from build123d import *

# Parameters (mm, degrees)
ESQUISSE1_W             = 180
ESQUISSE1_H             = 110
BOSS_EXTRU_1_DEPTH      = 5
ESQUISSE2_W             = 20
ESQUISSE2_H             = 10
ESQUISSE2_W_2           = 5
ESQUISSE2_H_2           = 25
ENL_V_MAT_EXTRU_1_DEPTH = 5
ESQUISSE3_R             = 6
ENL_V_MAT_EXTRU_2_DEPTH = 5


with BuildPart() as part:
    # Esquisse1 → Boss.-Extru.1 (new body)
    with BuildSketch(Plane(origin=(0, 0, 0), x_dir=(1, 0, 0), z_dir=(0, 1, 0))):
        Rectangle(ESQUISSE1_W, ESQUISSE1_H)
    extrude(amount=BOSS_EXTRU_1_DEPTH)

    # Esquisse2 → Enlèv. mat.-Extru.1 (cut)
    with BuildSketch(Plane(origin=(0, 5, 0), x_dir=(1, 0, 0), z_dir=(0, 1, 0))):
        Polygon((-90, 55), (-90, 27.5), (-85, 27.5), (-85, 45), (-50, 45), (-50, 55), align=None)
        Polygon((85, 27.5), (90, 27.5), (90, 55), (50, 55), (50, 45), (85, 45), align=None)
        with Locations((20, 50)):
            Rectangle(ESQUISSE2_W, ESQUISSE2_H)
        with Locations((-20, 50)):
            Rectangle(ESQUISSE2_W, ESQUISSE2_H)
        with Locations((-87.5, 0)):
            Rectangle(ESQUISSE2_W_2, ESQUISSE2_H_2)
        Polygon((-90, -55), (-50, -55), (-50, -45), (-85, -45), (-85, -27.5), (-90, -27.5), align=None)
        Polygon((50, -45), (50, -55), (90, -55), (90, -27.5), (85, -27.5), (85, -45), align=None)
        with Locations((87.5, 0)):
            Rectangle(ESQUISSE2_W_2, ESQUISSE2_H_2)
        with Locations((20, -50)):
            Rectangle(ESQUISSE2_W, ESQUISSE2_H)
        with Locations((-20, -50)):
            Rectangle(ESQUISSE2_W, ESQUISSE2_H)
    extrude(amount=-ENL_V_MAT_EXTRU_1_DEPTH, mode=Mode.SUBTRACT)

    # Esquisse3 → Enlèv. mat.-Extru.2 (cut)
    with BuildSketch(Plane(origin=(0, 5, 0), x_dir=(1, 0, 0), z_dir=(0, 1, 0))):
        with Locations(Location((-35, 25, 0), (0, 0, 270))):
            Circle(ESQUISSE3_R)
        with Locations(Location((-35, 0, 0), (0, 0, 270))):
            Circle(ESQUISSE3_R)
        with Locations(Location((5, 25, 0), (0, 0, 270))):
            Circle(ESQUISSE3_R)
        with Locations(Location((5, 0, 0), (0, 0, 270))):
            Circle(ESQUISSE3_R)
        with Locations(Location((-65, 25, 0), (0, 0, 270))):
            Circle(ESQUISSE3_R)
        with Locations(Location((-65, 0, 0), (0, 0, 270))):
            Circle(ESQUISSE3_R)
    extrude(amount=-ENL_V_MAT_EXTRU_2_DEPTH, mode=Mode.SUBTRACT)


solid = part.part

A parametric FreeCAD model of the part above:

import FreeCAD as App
import Part
import Sketcher
from FreeCAD import Vector
Q = App.Units.Quantity


def add_polygon(sketch, points):
    """Adds a closed chain of lines whose ends are joined by coincident constraints."""
    first, n = sketch.GeometryCount, len(points)
    for a, b in zip(points, points[1:] + points[:1]):
        sketch.addGeometry(Part.LineSegment(App.Vector(*a, 0), App.Vector(*b, 0)), False)
    for i in range(n):
        sketch.addConstraint(Sketcher.Constraint("Coincident", first + i, 2, first + (i + 1) % n, 1))

doc = App.newDocument("Part")
body = doc.addObject("PartDesign::Body", "Body")

# Sketch on XZ plane
sketch1 = body.newObject("Sketcher::SketchObject", "Sketch")
sketch1.AttachmentSupport = (doc.getObject("XZ_Plane"), [""])
sketch1.MapMode = "FlatFace"
add_polygon(sketch1, [(-90, -55), (-90, 55), (90, 55), (90, -55)])  # lines 0-3
sketch1.addConstraint([
    Sketcher.Constraint("Vertical", 0),
    Sketcher.Constraint("Horizontal", 1),
    Sketcher.Constraint("Vertical", 2),
    Sketcher.Constraint("Horizontal", 3),
    Sketcher.Constraint("Symmetric", 0, 2, 2, 2, -1, 1),
    Sketcher.Constraint("DistanceX", 1, 1, 1, 2, Q("180 mm")),
    Sketcher.Constraint("DistanceY", 0, 1, 0, 2, Q("110 mm")),
])
pad1 = body.newObject("PartDesign::Pad", "Pad")
pad1.Profile = sketch1
pad1.Length = 5
pad1.Reversed = True

# Sketch on XZ plane
sketch2 = body.newObject("Sketcher::SketchObject", "Sketch001")
sketch2.AttachmentSupport = (doc.getObject("XZ_Plane"), [""])
sketch2.MapMode = "FlatFace"
sketch2.AttachmentOffset = App.Placement(Vector(0, 0, -5), App.Rotation())
add_polygon(sketch2, [(-90, -55), (-90, -27.5), (-85, -27.5), (-85, -45), (-50, -45), (-50, -55)])  # lines 0-5
add_polygon(sketch2, [(85, -27.5), (90, -27.5), (90, -55), (50, -55), (50, -45), (85, -45)])  # lines 6-11
add_polygon(sketch2, [(10, -55), (10, -45), (30, -45), (30, -55)])  # lines 12-15
add_polygon(sketch2, [(-30, -55), (-30, -45), (-10, -45), (-10, -55)])  # lines 16-19
add_polygon(sketch2, [(-90, -12.5), (-90, 12.5), (-85, 12.5), (-85, -12.5)])  # lines 20-23
add_polygon(sketch2, [(-90, 55), (-50, 55), (-50, 45), (-85, 45), (-85, 27.5), (-90, 27.5)])  # lines 24-29
add_polygon(sketch2, [(50, 45), (50, 55), (90, 55), (90, 27.5), (85, 27.5), (85, 45)])  # lines 30-35
add_polygon(sketch2, [(85, -12.5), (85, 12.5), (90, 12.5), (90, -12.5)])  # lines 36-39
add_polygon(sketch2, [(10, 45), (10, 55), (30, 55), (30, 45)])  # lines 40-43
add_polygon(sketch2, [(-30, 45), (-30, 55), (-10, 55), (-10, 45)])  # lines 44-47
sketch2.addConstraint([
    Sketcher.Constraint("Vertical", 0),
    Sketcher.Constraint("Horizontal", 1),
    Sketcher.Constraint("Vertical", 2),
    Sketcher.Constraint("Horizontal", 3),
    Sketcher.Constraint("Vertical", 4),
    Sketcher.Constraint("Horizontal", 5),
    Sketcher.Constraint("Horizontal", 6),
    Sketcher.Constraint("Vertical", 7),
    Sketcher.Constraint("Horizontal", 8),
    Sketcher.Constraint("Vertical", 9),
    Sketcher.Constraint("Horizontal", 10),
    Sketcher.Constraint("Vertical", 11),
    Sketcher.Constraint("Vertical", 12),
    Sketcher.Constraint("Horizontal", 13),
    Sketcher.Constraint("Vertical", 14),
    Sketcher.Constraint("Horizontal", 15),
    Sketcher.Constraint("Vertical", 16),
    Sketcher.Constraint("Horizontal", 17),
    Sketcher.Constraint("Vertical", 18),
    Sketcher.Constraint("Horizontal", 19),
    Sketcher.Constraint("Vertical", 20),
    Sketcher.Constraint("Horizontal", 21),
    Sketcher.Constraint("Vertical", 22),
    Sketcher.Constraint("Horizontal", 23),
    Sketcher.Constraint("Horizontal", 24),
    Sketcher.Constraint("Vertical", 25),
    Sketcher.Constraint("Horizontal", 26),
    Sketcher.Constraint("Vertical", 27),
    Sketcher.Constraint("Horizontal", 28),
    Sketcher.Constraint("Vertical", 29),
    Sketcher.Constraint("Vertical", 30),
    Sketcher.Constraint("Horizontal", 31),
    Sketcher.Constraint("Vertical", 32),
    Sketcher.Constraint("Horizontal", 33),
    Sketcher.Constraint("Vertical", 34),
    Sketcher.Constraint("Horizontal", 35),
    Sketcher.Constraint("Vertical", 36),
    Sketcher.Constraint("Horizontal", 37),
    Sketcher.Constraint("Vertical", 38),
    Sketcher.Constraint("Horizontal", 39),
    Sketcher.Constraint("Vertical", 40),
    Sketcher.Constraint("Horizontal", 41),
    Sketcher.Constraint("Vertical", 42),
    Sketcher.Constraint("Horizontal", 43),
    Sketcher.Constraint("Vertical", 44),
    Sketcher.Constraint("Horizontal", 45),
    Sketcher.Constraint("Vertical", 46),
    Sketcher.Constraint("Horizontal", 47),
    Sketcher.Constraint("Symmetric", 8, 2, 24, 2, -1, 1),
    Sketcher.Constraint("Symmetric", 10, 2, 26, 2, -1, 1),
    Sketcher.Constraint("Symmetric", 6, 2, 28, 2, -1, 1),
    Sketcher.Constraint("Symmetric", 4, 2, 30, 2, -1, 1),
    Sketcher.Constraint("Symmetric", 0, 2, 32, 2, -1, 1),
    Sketcher.Constraint("Symmetric", 2, 2, 34, 2, -1, 1),
    Sketcher.Constraint("Symmetric", 22, 2, 36, 2, -1, 1),
    Sketcher.Constraint("Symmetric", 20, 2, 38, 2, -1, 1),
    Sketcher.Constraint("Symmetric", 18, 2, 40, 2, -1, 1),
    Sketcher.Constraint("Symmetric", 16, 2, 42, 2, -1, 1),
    Sketcher.Constraint("Symmetric", 14, 2, 44, 2, -1, 1),
    Sketcher.Constraint("Symmetric", 12, 2, 46, 2, -1, 1),
    Sketcher.Constraint("Symmetric", 0, 2, 6, 2, -2),
    Sketcher.Constraint("Symmetric", 4, 2, 8, 2, -2),
    Sketcher.Constraint("Symmetric", 2, 2, 10, 2, -2),
    Sketcher.Constraint("Symmetric", 13, 2, 16, 2, -2),
    Sketcher.Constraint("Symmetric", 15, 2, 18, 2, -2),
    Sketcher.Constraint("Horizontal", 10, 2, 12, 2),
    Sketcher.Constraint("Horizontal", 8, 2, 14, 2),
    Sketcher.Constraint("Horizontal", 21, 2, 36, 2),
    Sketcher.Constraint("Vertical", 5, 2, 20, 2),
    Sketcher.Constraint("Vertical", 2, 2, 21, 2),
    Sketcher.Constraint("DistanceX", 1, 1, 1, 2, Q("5 mm")),
    Sketcher.Constraint("DistanceX", 3, 1, 3, 2, Q("35 mm")),
    Sketcher.Constraint("DistanceX", 13, 1, 13, 2, Q("20 mm")),
    Sketcher.Constraint("DistanceY", 4, 2, 4, 1, Q("10 mm")),
    Sketcher.Constraint("DistanceY", 20, 1, 20, 2, Q("25 mm")),
    Sketcher.Constraint("DistanceY", 0, 1, 0, 2, Q("27.5 mm")),
    Sketcher.Constraint("DistanceX", 0, 2, -1, 1, Q("90 mm")),
    Sketcher.Constraint("DistanceY", 2, 2, -1, 1, Q("45 mm")),
    Sketcher.Constraint("DistanceX", -1, 1, 12, 2, Q("10 mm")),
])
pocket1 = body.newObject("PartDesign::Pocket", "Pocket")
pocket1.Profile = sketch2
pocket1.Length = 5
pocket1.Reversed = True

# Sketch on XZ plane
sketch3 = body.newObject("Sketcher::SketchObject", "Sketch002")
sketch3.AttachmentSupport = (doc.getObject("XZ_Plane"), [""])
sketch3.MapMode = "FlatFace"
sketch3.AttachmentOffset = App.Placement(Vector(0, 0, -5), App.Rotation())
sketch3.addGeometry([
    Part.Circle(Vector(-35, -25, 0), Vector(0, 0, 1), 6),  # 0
    Part.Circle(Vector(-35, 0, 0), Vector(0, 0, 1), 6),  # 1
    Part.Circle(Vector(5, -25, 0), Vector(0, 0, 1), 6),  # 2
    Part.Circle(Vector(5, 0, 0), Vector(0, 0, 1), 6),  # 3
    Part.Circle(Vector(-65, -25, 0), Vector(0, 0, 1), 6),  # 4
    Part.Circle(Vector(-65, 0, 0), Vector(0, 0, 1), 6),  # 5
], False)
sketch3.addConstraint([
    Sketcher.Constraint("Equal", 0, 1),
    Sketcher.Constraint("Equal", 1, 2),
    Sketcher.Constraint("Equal", 2, 3),
    Sketcher.Constraint("Equal", 3, 4),
    Sketcher.Constraint("Equal", 4, 5),
    Sketcher.Constraint("PointOnObject", 1, 3, -1),
    Sketcher.Constraint("PointOnObject", 3, 3, -1),
    Sketcher.Constraint("PointOnObject", 5, 3, -1),
    Sketcher.Constraint("Horizontal", 0, 3, 2, 3),
    Sketcher.Constraint("Horizontal", 2, 3, 4, 3),
    Sketcher.Constraint("Vertical", 0, 3, 1, 3),
    Sketcher.Constraint("Vertical", 2, 3, 3, 3),
    Sketcher.Constraint("Vertical", 4, 3, 5, 3),
    Sketcher.Constraint("Diameter", 0, Q("12 mm")),
    Sketcher.Constraint("DistanceX", 0, 3, -1, 1, Q("35 mm")),
    Sketcher.Constraint("DistanceY", 0, 3, -1, 1, Q("25 mm")),
    Sketcher.Constraint("DistanceX", -1, 1, 2, 3, Q("5 mm")),
    Sketcher.Constraint("DistanceX", 4, 3, -1, 1, Q("65 mm")),
])
pocket2 = body.newObject("PartDesign::Pocket", "Pocket001")
pocket2.Profile = sketch3
pocket2.Length = 5
pocket2.Reversed = True

doc.recompute()
